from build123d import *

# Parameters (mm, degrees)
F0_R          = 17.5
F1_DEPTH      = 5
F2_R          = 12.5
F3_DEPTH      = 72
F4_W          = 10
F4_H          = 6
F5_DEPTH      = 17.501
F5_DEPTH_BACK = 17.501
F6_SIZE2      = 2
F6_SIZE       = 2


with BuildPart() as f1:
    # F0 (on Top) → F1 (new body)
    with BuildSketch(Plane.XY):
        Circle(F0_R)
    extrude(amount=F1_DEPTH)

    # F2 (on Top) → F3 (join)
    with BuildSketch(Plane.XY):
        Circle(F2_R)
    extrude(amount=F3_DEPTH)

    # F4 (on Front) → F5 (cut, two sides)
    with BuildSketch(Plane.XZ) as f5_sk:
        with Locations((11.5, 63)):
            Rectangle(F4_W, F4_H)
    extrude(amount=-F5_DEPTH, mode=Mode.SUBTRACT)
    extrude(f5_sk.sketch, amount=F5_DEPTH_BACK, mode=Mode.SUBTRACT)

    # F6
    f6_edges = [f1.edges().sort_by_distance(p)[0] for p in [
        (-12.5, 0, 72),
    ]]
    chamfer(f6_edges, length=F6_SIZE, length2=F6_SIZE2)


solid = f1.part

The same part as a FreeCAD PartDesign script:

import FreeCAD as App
import Part
import Sketcher
from FreeCAD import Vector
Q = App.Units.Quantity


def edges_at(feature, points):
    """Names of the edges that pass closest to the given points."""
    edges = feature.Shape.Edges
    near = lambda p: min(range(len(edges)), key=lambda i: edges[i].distToShape(Part.Vertex(*p))[0])
    return sorted({f"Edge{near(p) + 1}" for p in points})


def add_polygon(sketch, points):
    """Adds a closed chain of lines whose ends are joined by coincident constraints."""
    first, n = sketch.GeometryCount, len(points)
    for a, b in zip(points, points[1:] + points[:1]):
        sketch.addGeometry(Part.LineSegment(App.Vector(*a, 0), App.Vector(*b, 0)), False)
    for i in range(n):
        sketch.addConstraint(Sketcher.Constraint("Coincident", first + i, 2, first + (i + 1) % n, 1))

doc = App.newDocument("Part")
params = doc.addObject("Spreadsheet::Sheet", "Params")
for row, (alias, value) in enumerate([
    ("sketch1_diameter", "35 mm"),
    ("pad1_length", "5 mm"),
    ("sketch2_diameter", "25 mm"),
    ("pad2_length", "72 mm"),
    ("sketch3_width", "10 mm"),
    ("sketch3_height", "6 mm"),
    ("chamfer_size", "2 mm"),
    ("chamfer_size2", "2 mm"),
], start=1):
    params.set(f"A{row}", alias)
    params.set(f"B{row}", "=" + value)
    params.setAlias(f"B{row}", alias)

body = doc.addObject("PartDesign::Body", "Body")

# Sketch on XY plane
sketch1 = body.newObject("Sketcher::SketchObject", "Sketch")
sketch1.AttachmentSupport = (doc.getObject("XY_Plane"), [""])
sketch1.MapMode = "FlatFace"
sketch1.addGeometry(Part.Circle(Vector(0, 0, 0), Vector(0, 0, 1), 18), False)
sketch1.addConstraint(Sketcher.Constraint("Coincident", 0, 3, -1, 1))
sketch1.addConstraint(Sketcher.Constraint("Diameter", 0, Q("35 mm")))
sketch1.setExpression("Constraints[1]", "Params.sketch1_diameter")
pad1 = body.newObject("PartDesign::Pad", "Pad")
pad1.Profile = sketch1
pad1.setExpression("Length", "Params.pad1_length")

# Sketch on XY plane
sketch2 = body.newObject("Sketcher::SketchObject", "Sketch001")
sketch2.AttachmentSupport = (doc.getObject("XY_Plane"), [""])
sketch2.MapMode = "FlatFace"
sketch2.addGeometry(Part.Circle(Vector(0, 0, 0), Vector(0, 0, 1), 12), False)
sketch2.addConstraint(Sketcher.Constraint("Coincident", 0, 3, -1, 1))
sketch2.addConstraint(Sketcher.Constraint("Diameter", 0, Q("25 mm")))
sketch2.setExpression("Constraints[1]", "Params.sketch2_diameter")
pad2 = body.newObject("PartDesign::Pad", "Pad001")
pad2.Profile = sketch2
pad2.setExpression("Length", "Params.pad2_length")

# Sketch on XZ plane
sketch3 = body.newObject("Sketcher::SketchObject", "Sketch002")
sketch3.AttachmentSupport = (doc.getObject("XZ_Plane"), [""])
sketch3.MapMode = "FlatFace"
add_polygon(sketch3, [(6, 66), (6, 60), (16, 60), (16, 66)])  # lines 0-3
sketch3.addConstraint(Sketcher.Constraint("Vertical", 0))
sketch3.addConstraint(Sketcher.Constraint("Horizontal", 1))
sketch3.addConstraint(Sketcher.Constraint("Vertical", 2))
sketch3.addConstraint(Sketcher.Constraint("Horizontal", 3))
sketch3.addConstraint(Sketcher.Constraint("DistanceX", 1, 1, 1, 2, Q("10 mm")))
sketch3.addConstraint(Sketcher.Constraint("DistanceY", 0, 2, 0, 1, Q("6 mm")))
sketch3.addConstraint(Sketcher.Constraint("DistanceY", -1, 1, 0, 2, Q("60 mm")))
sketch3.addConstraint(Sketcher.Constraint("DistanceX", -1, 1, 0, 2, Q("6.5 mm")))
sketch3.setExpression("Constraints[8]", "Params.sketch3_width")
sketch3.setExpression("Constraints[9]", "Params.sketch3_height")
pocket1 = body.newObject("PartDesign::Pocket", "Pocket")
pocket1.Profile = sketch3
pocket1.Type = "ThroughAll"
pocket1.Midplane = True
doc.recompute()

chamfer = body.newObject("PartDesign::Chamfer", "Chamfer")
chamfer.Base = (pocket1, edges_at(pocket1, [(-12.5, 0, 72)]))
chamfer.ChamferType = "Two distances"
chamfer.setExpression("Size", "Params.chamfer_size")
chamfer.setExpression("Size2", "Params.chamfer_size2")

doc.recompute()
